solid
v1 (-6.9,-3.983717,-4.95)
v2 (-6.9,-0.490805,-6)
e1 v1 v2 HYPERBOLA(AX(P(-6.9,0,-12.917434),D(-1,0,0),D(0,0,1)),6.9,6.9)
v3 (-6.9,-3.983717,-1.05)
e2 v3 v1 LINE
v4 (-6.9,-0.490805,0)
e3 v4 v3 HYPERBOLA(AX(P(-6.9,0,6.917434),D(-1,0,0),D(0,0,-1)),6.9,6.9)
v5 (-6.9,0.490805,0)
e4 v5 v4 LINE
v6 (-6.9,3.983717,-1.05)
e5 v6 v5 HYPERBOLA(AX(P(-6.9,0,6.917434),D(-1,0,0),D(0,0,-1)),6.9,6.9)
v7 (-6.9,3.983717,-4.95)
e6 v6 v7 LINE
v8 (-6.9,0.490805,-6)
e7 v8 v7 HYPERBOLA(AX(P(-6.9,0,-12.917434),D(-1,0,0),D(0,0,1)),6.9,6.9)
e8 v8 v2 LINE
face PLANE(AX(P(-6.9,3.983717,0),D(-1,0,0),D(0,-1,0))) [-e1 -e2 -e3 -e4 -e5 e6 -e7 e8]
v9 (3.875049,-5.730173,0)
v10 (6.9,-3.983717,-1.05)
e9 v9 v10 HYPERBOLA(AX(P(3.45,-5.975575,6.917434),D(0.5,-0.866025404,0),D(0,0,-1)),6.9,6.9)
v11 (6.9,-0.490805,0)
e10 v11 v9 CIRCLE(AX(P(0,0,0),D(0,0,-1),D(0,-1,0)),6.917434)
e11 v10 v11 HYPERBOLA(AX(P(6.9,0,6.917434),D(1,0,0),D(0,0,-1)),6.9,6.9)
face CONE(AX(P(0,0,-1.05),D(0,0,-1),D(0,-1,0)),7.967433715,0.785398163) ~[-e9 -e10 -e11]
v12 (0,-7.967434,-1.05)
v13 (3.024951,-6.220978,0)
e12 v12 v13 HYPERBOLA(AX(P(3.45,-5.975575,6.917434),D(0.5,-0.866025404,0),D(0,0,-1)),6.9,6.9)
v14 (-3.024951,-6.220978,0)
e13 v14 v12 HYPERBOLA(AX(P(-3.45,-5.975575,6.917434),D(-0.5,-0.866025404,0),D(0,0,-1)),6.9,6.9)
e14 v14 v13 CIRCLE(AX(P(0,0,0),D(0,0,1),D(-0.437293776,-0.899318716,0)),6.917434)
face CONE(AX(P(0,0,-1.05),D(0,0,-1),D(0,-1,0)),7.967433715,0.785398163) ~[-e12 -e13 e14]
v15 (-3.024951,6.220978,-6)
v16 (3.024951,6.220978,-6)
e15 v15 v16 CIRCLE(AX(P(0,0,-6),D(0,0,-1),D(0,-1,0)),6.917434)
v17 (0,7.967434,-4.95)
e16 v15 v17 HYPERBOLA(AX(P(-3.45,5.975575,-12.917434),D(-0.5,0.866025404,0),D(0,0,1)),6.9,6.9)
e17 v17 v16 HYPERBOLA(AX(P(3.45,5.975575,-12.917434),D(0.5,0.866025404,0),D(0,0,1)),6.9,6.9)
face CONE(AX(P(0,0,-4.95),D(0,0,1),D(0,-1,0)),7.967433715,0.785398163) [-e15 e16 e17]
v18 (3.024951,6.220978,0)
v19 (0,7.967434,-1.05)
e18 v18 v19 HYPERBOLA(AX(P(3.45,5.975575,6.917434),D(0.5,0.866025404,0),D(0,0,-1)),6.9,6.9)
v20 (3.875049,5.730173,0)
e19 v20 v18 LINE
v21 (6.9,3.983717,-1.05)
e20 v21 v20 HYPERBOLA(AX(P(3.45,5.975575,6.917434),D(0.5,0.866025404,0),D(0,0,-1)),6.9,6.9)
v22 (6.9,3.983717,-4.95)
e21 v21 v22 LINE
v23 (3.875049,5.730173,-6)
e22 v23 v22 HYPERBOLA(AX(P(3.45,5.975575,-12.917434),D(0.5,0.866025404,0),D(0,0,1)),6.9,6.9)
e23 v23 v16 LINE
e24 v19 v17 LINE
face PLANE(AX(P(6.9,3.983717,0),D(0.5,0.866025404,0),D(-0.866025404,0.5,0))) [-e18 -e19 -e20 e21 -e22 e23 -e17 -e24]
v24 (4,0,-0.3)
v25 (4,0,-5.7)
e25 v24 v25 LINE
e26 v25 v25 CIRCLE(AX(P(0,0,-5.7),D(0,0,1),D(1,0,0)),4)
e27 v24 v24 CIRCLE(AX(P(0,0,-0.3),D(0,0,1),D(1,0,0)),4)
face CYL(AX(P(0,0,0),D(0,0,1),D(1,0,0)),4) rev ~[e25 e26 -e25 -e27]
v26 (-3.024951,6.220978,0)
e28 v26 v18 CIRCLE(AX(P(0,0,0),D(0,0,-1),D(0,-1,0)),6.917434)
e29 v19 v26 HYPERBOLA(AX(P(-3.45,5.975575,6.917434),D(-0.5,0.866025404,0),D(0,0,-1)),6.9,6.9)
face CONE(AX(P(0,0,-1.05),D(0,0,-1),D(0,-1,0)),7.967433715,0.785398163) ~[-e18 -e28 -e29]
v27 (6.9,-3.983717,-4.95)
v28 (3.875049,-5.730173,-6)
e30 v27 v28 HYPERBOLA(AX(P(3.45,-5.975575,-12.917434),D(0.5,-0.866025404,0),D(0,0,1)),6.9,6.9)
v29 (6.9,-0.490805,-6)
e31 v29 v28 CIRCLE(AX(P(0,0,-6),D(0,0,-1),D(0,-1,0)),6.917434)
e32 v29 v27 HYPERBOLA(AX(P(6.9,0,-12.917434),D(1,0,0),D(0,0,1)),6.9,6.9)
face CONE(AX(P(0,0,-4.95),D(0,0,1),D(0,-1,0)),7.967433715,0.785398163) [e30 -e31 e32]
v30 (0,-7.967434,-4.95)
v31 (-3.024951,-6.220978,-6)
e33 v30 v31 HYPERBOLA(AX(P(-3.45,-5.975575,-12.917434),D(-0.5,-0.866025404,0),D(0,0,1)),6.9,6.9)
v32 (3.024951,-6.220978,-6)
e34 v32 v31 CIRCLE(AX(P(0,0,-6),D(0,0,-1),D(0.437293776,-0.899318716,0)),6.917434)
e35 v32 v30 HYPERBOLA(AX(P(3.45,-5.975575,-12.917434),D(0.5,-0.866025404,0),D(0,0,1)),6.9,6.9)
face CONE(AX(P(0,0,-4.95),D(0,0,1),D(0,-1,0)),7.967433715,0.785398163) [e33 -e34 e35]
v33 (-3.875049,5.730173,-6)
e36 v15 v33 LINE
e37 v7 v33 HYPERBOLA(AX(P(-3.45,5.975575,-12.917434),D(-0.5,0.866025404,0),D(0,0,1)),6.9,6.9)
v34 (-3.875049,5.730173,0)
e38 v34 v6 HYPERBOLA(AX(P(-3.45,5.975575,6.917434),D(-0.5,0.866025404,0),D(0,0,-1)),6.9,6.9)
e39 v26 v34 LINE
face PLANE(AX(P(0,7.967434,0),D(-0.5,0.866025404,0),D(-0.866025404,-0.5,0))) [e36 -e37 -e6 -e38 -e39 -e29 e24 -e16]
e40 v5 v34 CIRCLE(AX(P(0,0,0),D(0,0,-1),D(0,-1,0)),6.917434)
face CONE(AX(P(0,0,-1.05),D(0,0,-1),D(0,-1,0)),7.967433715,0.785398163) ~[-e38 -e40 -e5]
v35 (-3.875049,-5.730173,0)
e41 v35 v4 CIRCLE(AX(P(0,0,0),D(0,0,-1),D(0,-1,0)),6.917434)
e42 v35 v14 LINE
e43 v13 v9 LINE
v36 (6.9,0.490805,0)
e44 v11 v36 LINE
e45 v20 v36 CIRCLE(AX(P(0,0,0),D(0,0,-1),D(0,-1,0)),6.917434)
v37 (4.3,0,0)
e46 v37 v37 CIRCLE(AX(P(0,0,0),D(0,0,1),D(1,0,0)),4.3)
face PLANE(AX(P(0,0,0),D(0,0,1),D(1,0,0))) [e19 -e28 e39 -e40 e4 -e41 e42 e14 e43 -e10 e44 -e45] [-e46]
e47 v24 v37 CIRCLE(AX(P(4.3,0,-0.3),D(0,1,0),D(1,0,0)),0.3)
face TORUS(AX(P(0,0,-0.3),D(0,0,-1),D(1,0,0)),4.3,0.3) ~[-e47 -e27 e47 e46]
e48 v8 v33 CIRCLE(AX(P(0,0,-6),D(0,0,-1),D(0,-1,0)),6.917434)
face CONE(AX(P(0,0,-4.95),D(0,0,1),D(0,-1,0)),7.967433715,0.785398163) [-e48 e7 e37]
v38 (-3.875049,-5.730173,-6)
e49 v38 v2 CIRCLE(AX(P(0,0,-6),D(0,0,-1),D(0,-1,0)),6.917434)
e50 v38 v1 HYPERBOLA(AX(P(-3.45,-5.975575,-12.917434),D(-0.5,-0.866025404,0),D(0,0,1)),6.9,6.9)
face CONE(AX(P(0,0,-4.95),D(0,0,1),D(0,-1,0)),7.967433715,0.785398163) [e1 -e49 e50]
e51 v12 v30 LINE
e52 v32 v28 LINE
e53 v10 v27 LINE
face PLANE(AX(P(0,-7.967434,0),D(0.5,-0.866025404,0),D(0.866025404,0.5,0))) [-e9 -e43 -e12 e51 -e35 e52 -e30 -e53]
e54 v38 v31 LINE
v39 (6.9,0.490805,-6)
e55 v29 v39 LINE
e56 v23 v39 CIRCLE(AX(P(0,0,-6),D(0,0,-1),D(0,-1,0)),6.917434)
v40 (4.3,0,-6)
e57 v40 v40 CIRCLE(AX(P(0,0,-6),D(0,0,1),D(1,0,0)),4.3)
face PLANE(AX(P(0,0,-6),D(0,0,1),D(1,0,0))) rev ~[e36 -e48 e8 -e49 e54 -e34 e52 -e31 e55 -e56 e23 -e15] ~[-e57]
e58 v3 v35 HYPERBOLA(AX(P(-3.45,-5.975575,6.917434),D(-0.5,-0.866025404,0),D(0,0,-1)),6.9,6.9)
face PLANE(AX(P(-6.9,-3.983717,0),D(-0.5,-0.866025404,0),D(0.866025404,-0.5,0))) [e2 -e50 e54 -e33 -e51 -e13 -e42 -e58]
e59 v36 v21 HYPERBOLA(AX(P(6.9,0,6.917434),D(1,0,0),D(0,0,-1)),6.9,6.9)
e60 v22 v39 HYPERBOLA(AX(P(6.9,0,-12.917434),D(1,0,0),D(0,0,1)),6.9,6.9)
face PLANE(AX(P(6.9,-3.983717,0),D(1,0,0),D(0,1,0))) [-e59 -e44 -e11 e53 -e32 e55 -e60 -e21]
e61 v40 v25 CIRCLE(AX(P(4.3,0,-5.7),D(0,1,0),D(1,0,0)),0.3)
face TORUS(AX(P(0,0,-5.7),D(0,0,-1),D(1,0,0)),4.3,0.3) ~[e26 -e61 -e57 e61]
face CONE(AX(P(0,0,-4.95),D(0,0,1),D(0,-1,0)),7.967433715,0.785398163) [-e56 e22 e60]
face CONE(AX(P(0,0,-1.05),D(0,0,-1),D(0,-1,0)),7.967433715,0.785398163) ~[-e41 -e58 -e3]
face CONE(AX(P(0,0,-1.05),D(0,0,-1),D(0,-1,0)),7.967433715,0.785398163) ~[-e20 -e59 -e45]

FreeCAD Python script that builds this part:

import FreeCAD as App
import Part
import Sketcher
from FreeCAD import Vector
Q = App.Units.Quantity


def edges_at(feature, points):
    """Names of the edges that pass closest to the given points."""
    edges = feature.Shape.Edges
    near = lambda p: min(range(len(edges)), key=lambda i: edges[i].distToShape(Part.Vertex(*p))[0])
    return sorted({f"Edge{near(p) + 1}" for p in points})


def add_polygon(sketch, points):
    """Adds a closed chain of lines whose ends are joined by coincident constraints."""
    first, n = sketch.GeometryCount, len(points)
    for a, b in zip(points, points[1:] + points[:1]):
        sketch.addGeometry(Part.LineSegment(App.Vector(*a, 0), App.Vector(*b, 0)), False)
    for i in range(n):
        sketch.addConstraint(Sketcher.Constraint("Coincident", first + i, 2, first + (i + 1) % n, 1))

doc = App.newDocument("Part")
params = doc.addObject("Spreadsheet::Sheet", "Params")
for row, (alias, value) in enumerate([
    ("pad1_length", "6 mm"),
    ("sketch2_diameter", "8 mm"),
    ("pocket1_length", "6 mm"),
    ("sketch3_width", "1.05 mm"),
    ("groove_angle", "360 deg"),
    ("fillet_radius", "0.3 mm"),
], start=1):
    params.set(f"A{row}", alias)
    params.set(f"B{row}", "=" + value)
    params.setAlias(f"B{row}", alias)

body = doc.addObject("PartDesign::Body", "Body")

# Sketch on XY plane
sketch1 = body.newObject("Sketcher::SketchObject", "Sketch")
sketch1.AttachmentSupport = (doc.getObject("XY_Plane"), [""])
sketch1.MapMode = "FlatFace"
add_polygon(sketch1, [(0, 8), (-7, 4), (-7, -4), (0, -8), (7, -4), (7, 4)])  # lines 0-5
sketch1.addConstraint(Sketcher.Constraint("Vertical", 1))
sketch1.addConstraint(Sketcher.Constraint("Vertical", 4))
sketch1.addConstraint(Sketcher.Constraint("Symmetric", 0, 2, 3, 2, -1, 1))
sketch1.addConstraint(Sketcher.Constraint("Symmetric", 2, 2, 5, 2, -1, 1))
sketch1.addConstraint(Sketcher.Constraint("PointOnObject", 2, 2, -2))
sketch1.addConstraint(Sketcher.Constraint("Parallel", 2, 5))
sketch1.addConstraint(Sketcher.Constraint("Horizontal", 1, 2, 3, 2))
sketch1.addConstraint(Sketcher.Constraint("Angle", 0, Q("-150 deg")))
sketch1.addConstraint(Sketcher.Constraint("DistanceX", 0, 2, -1, 1, 6.9))
sketch1.addConstraint(Sketcher.Constraint("DistanceY", 1, 2, 1, 1, 7.967434))
pad1 = body.newObject("PartDesign::Pad", "Pad")
pad1.Profile = sketch1
pad1.setExpression("Length", "Params.pad1_length")
pad1.Reversed = True

# Sketch on XY plane
sketch2 = body.newObject("Sketcher::SketchObject", "Sketch001")
sketch2.AttachmentSupport = (doc.getObject("XY_Plane"), [""])
sketch2.MapMode = "FlatFace"
sketch2.addGeometry(Part.Circle(Vector(0, 0, 0), Vector(0, 0, 1), 4), False)
sketch2.addConstraint(Sketcher.Constraint("Coincident", 0, 3, -1, 1))
sketch2.addConstraint(Sketcher.Constraint("Diameter", 0, 8.0))
sketch2.setExpression("Constraints[1]", "Params.sketch2_diameter")
pocket1 = body.newObject("PartDesign::Pocket", "Pocket")
pocket1.Profile = sketch2
pocket1.setExpression("Length", "Params.pocket1_length")

# Sketch on YZ plane
sketch3 = body.newObject("Sketcher::SketchObject", "Sketch002")
sketch3.AttachmentSupport = (doc.getObject("YZ_Plane"), [""])
sketch3.MapMode = "FlatFace"
add_polygon(sketch3, [(-8, 0), (-8, -1.1), (-6.9, 0)])  # lines 0-2
add_polygon(sketch3, [(-8, -5), (-8, -6), (-6.9, -6)])  # lines 3-5
sketch3.addConstraint(Sketcher.Constraint("Vertical", 0))
sketch3.addConstraint(Sketcher.Constraint("Horizontal", 2))
sketch3.addConstraint(Sketcher.Constraint("Vertical", 3))
sketch3.addConstraint(Sketcher.Constraint("Horizontal", 4))
sketch3.addConstraint(Sketcher.Constraint("PointOnObject", 1, 2, -1))
sketch3.addConstraint(Sketcher.Constraint("Perpendicular", 1, 5))
sketch3.addConstraint(Sketcher.Constraint("Vertical", 2, 2, 3, 2))
sketch3.addConstraint(Sketcher.Constraint("Vertical", 1, 2, 4, 2))
sketch3.addConstraint(Sketcher.Constraint("Equal", 4, 0))
sketch3.addConstraint(Sketcher.Constraint("DistanceY", 3, 2, -1, 1, 6.0))
sketch3.addConstraint(Sketcher.Constraint("DistanceX", 2, 2, 2, 1, 1.05))
sketch3.addConstraint(Sketcher.Constraint("DistanceX", 0, 2, -1, 1, 7.967434))
sketch3.setExpression("Constraints[16]", "Params.sketch3_width")
groove = body.newObject("PartDesign::Groove", "Groove")
groove.Profile = sketch3
groove.ReferenceAxis = (sketch3, ["V_Axis"])
groove.setExpression("Angle", "Params.groove_angle")
doc.recompute()

fillet = body.newObject("PartDesign::Fillet", "Fillet")
fillet.Base = (groove, edges_at(groove, [(-4, 0, -6), (-4, 0, 0)]))
fillet.setExpression("Radius", "Params.fillet_radius")

doc.recompute()
